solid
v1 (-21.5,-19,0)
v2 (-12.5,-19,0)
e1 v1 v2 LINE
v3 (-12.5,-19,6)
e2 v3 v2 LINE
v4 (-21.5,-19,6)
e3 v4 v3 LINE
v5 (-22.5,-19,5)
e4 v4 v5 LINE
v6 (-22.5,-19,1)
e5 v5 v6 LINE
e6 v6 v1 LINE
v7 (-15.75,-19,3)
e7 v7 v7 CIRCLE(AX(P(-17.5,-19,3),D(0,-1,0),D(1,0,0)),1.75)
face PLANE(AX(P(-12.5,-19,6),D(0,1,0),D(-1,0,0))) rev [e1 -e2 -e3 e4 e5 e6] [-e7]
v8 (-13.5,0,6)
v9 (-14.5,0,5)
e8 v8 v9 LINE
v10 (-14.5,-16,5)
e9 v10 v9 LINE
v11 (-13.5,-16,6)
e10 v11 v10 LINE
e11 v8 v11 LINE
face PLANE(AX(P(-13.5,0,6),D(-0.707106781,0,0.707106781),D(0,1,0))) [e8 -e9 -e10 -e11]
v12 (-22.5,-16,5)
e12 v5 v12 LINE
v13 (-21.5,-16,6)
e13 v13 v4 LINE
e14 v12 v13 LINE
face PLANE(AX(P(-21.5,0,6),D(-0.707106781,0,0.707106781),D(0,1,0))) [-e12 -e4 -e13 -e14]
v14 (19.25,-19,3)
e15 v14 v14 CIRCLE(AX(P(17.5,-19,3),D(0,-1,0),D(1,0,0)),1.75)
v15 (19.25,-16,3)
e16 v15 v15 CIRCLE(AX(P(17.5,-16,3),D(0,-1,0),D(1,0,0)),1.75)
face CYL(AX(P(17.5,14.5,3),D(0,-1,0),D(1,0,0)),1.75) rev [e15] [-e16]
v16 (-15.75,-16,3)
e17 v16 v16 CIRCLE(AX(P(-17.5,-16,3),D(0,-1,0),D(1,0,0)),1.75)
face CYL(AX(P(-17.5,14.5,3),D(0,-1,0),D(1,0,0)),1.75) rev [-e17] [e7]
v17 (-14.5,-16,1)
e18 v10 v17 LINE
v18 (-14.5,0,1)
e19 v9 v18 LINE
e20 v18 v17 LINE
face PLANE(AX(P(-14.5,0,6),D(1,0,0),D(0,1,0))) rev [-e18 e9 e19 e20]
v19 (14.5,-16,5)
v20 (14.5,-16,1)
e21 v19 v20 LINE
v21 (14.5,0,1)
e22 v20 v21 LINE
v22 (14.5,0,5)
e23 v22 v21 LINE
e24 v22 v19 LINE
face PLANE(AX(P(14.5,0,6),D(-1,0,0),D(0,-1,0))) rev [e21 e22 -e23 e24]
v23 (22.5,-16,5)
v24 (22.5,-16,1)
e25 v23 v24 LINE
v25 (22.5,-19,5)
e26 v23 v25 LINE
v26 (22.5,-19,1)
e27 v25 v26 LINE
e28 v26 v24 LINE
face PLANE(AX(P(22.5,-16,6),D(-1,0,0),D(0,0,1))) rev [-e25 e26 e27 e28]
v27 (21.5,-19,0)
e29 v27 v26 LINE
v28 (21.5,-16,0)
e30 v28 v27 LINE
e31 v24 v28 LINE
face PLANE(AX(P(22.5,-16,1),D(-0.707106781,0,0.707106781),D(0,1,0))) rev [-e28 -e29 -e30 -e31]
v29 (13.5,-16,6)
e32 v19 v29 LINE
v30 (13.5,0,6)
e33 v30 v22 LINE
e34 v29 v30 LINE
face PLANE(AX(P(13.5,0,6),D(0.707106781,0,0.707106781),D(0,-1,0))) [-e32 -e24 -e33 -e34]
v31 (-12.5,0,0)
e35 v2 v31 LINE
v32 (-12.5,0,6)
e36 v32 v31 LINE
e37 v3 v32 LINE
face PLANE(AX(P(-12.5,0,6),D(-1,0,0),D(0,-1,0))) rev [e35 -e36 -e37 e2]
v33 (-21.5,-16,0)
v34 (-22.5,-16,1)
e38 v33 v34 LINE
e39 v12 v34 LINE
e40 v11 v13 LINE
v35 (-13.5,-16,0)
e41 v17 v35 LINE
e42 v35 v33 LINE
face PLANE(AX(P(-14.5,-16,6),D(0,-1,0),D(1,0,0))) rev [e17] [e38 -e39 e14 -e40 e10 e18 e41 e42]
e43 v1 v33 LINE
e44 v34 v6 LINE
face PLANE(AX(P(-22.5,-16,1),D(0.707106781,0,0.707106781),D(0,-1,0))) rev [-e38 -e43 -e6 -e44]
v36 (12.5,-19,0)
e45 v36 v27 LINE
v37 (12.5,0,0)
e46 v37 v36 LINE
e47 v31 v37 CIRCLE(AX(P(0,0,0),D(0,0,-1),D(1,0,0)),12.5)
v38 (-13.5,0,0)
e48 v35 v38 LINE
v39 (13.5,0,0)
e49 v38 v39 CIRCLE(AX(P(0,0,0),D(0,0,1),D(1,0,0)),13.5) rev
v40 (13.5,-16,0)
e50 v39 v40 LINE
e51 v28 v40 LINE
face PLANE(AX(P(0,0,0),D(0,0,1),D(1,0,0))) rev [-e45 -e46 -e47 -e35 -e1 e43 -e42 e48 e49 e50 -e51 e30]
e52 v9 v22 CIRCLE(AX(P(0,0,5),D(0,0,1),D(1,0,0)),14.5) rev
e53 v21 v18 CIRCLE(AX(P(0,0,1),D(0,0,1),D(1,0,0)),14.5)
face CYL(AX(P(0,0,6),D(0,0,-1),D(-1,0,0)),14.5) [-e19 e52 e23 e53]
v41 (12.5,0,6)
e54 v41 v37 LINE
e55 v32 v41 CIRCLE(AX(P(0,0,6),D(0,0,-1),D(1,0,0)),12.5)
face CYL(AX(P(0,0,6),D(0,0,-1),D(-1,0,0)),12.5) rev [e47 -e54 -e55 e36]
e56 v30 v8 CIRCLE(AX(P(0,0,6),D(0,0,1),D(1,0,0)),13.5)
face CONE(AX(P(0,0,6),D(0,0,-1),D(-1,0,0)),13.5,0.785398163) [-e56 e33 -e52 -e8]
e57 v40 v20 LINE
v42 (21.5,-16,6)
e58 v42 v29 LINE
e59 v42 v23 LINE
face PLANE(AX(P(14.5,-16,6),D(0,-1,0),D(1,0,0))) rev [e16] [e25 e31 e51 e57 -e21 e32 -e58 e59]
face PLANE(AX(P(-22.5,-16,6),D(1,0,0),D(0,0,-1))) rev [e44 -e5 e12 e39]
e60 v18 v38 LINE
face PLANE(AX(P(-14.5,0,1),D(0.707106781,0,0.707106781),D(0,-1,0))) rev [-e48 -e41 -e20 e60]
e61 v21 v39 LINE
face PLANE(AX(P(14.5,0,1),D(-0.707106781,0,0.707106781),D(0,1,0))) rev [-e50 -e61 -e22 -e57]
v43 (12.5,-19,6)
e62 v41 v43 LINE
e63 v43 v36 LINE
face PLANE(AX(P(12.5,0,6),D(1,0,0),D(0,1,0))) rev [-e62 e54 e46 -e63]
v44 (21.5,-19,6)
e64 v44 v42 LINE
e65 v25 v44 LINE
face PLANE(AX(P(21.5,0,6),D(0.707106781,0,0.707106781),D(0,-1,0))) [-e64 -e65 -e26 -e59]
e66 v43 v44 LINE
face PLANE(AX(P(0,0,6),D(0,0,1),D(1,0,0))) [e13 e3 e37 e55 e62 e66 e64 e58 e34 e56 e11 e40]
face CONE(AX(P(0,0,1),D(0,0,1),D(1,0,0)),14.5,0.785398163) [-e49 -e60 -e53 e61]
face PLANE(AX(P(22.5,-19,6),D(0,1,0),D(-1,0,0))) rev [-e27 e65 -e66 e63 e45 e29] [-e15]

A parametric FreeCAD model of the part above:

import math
import FreeCAD as App
import Part
import Sketcher

V = App.Vector
Q = App.Units.Quantity


def edges_at(feature, points):
    """Names of the edges that pass closest to the given points."""
    edges = feature.Shape.Edges
    near = lambda p: min(range(len(edges)), key=lambda i: edges[i].distToShape(Part.Vertex(*p))[0])
    return sorted({f"Edge{near(p) + 1}" for p in points})

doc = App.newDocument("Part")
body = doc.addObject("PartDesign::Body", "Body")

# Sketch on XY plane
sketch1 = doc.addObject("Sketcher::SketchObject", "Sketch")
body.addObject(sketch1)
sketch1.AttachmentSupport = (doc.XY_Plane, [""])
sketch1.MapMode = "FlatFace"
sketch1.addGeometry([
    Part.LineSegment(V(-14.5, 0, 0), V(-14.5, -16, 0)),  # 0
    Part.LineSegment(V(-14.5, -16, 0), V(-22.5, -16, 0)),  # 1
    Part.LineSegment(V(-22.5, -16, 0), V(-22.5, -19, 0)),  # 2
    Part.LineSegment(V(-22.5, -19, 0), V(-12.5, -19, 0)),  # 3
    Part.LineSegment(V(-12.5, -19, 0), V(-12.5, 0, 0)),  # 4
    Part.ArcOfCircle(Part.Circle(V(0, 0, 0), V(0, 0, 1), 12.5), math.radians(0), math.radians(180)),  # 5
    Part.LineSegment(V(12.5, 0, 0), V(12.5, -19, 0)),  # 6
    Part.LineSegment(V(12.5, -19, 0), V(22.5, -19, 0)),  # 7
    Part.LineSegment(V(22.5, -19, 0), V(22.5, -16, 0)),  # 8
    Part.LineSegment(V(22.5, -16, 0), V(14.5, -16, 0)),  # 9
    Part.LineSegment(V(14.5, -16, 0), V(14.5, 0, 0)),  # 10
    Part.ArcOfCircle(Part.Circle(V(0, 0, 0), V(0, 0, 1), 14.5), math.radians(0), math.radians(180)),  # 11
], False)
sketch1.addConstraint([
    Sketcher.Constraint("Coincident", 0, 2, 1, 1),
    Sketcher.Constraint("Coincident", 1, 2, 2, 1),
    Sketcher.Constraint("Coincident", 2, 2, 3, 1),
    Sketcher.Constraint("Coincident", 3, 2, 4, 1),
    Sketcher.Constraint("Tangent", 4, 2, 5, 2),
    Sketcher.Constraint("Tangent", 5, 1, 6, 1),
    Sketcher.Constraint("Coincident", 6, 2, 7, 1),
    Sketcher.Constraint("Coincident", 7, 2, 8, 1),
    Sketcher.Constraint("Coincident", 8, 2, 9, 1),
    Sketcher.Constraint("Coincident", 9, 2, 10, 1),
    Sketcher.Constraint("Tangent", 10, 2, 11, 1),
    Sketcher.Constraint("Tangent", 11, 2, 0, 1),
    Sketcher.Constraint("Vertical", 0),
    Sketcher.Constraint("Horizontal", 1),
    Sketcher.Constraint("Vertical", 2),
    Sketcher.Constraint("Horizontal", 3),
    Sketcher.Constraint("Vertical", 4),
    Sketcher.Constraint("Vertical", 6),
    Sketcher.Constraint("Horizontal", 7),
    Sketcher.Constraint("Vertical", 8),
    Sketcher.Constraint("Horizontal", 9),
    Sketcher.Constraint("Vertical", 10),
    Sketcher.Constraint("Coincident", 5, 3, -1, 1),
    Sketcher.Constraint("Coincident", 11, 3, -1, 1),
    Sketcher.Constraint("Symmetric", 2, 2, 7, 2, -2),
    Sketcher.Constraint("Horizontal", 1, 2, 8, 2),
    Sketcher.Constraint("Radius", 5, Q("12.5 mm")),
    Sketcher.Constraint("Radius", 11, Q("14.5 mm")),
    Sketcher.Constraint("DistanceX", 1, 2, 1, 1, Q("8 mm")),
    Sketcher.Constraint("DistanceY", 0, 2, 0, 1, Q("16 mm")),
    Sketcher.Constraint("DistanceY", 2, 2, 2, 1, Q("3 mm")),
])
pad1 = doc.addObject("PartDesign::Pad", "Pad")
body.addObject(pad1)
pad1.Profile = sketch1
pad1.Length = 6

# Sketch on XZ plane
sketch2 = doc.addObject("Sketcher::SketchObject", "Sketch001")
body.addObject(sketch2)
sketch2.AttachmentSupport = (doc.XZ_Plane, [""])
sketch2.MapMode = "FlatFace"
sketch2.AttachmentOffset = App.Placement(V(0, 0, 19), App.Rotation())
sketch2.addGeometry([
    Part.Circle(V(-17.5, 3, 0), V(0, 0, 1), 1.8),
    Part.Circle(V(17.5, 3, 0), V(0, 0, 1), 1.8),
], False)
sketch2.addConstraint([
    Sketcher.Constraint("Equal", 0, 1),
    Sketcher.Constraint("Symmetric", 0, 3, 1, 3, -2),
    Sketcher.Constraint("Diameter", 0, Q("3.5 mm")),
    Sketcher.Constraint("DistanceY", -1, 1, 0, 3, Q("3 mm")),
    Sketcher.Constraint("DistanceX", 0, 3, 1, 3, Q("35 mm")),
])
pocket1 = doc.addObject("PartDesign::Pocket", "Pocket")
body.addObject(pocket1)
pocket1.Profile = sketch2
pocket1.Type = "ThroughAll"
doc.recompute()

chamfer = doc.addObject("PartDesign::Chamfer", "Chamfer")
body.addObject(chamfer)
chamfer.Base = (pocket1, edges_at(pocket1, [
    (14.5, -8, 0),
    (22.5, -17.5, 0),
    (-22.5, -17.5, 0),
    (-14.5, -8, 0),
    (0, 14.5, 0),
    (-22.5, -17.5, 6),
    (22.5, -17.5, 6),
    (14.5, -8, 6),
    (0, 14.5, 6),
    (-14.5, -8, 6),
]))
chamfer.Size = 1

doc.recompute()
